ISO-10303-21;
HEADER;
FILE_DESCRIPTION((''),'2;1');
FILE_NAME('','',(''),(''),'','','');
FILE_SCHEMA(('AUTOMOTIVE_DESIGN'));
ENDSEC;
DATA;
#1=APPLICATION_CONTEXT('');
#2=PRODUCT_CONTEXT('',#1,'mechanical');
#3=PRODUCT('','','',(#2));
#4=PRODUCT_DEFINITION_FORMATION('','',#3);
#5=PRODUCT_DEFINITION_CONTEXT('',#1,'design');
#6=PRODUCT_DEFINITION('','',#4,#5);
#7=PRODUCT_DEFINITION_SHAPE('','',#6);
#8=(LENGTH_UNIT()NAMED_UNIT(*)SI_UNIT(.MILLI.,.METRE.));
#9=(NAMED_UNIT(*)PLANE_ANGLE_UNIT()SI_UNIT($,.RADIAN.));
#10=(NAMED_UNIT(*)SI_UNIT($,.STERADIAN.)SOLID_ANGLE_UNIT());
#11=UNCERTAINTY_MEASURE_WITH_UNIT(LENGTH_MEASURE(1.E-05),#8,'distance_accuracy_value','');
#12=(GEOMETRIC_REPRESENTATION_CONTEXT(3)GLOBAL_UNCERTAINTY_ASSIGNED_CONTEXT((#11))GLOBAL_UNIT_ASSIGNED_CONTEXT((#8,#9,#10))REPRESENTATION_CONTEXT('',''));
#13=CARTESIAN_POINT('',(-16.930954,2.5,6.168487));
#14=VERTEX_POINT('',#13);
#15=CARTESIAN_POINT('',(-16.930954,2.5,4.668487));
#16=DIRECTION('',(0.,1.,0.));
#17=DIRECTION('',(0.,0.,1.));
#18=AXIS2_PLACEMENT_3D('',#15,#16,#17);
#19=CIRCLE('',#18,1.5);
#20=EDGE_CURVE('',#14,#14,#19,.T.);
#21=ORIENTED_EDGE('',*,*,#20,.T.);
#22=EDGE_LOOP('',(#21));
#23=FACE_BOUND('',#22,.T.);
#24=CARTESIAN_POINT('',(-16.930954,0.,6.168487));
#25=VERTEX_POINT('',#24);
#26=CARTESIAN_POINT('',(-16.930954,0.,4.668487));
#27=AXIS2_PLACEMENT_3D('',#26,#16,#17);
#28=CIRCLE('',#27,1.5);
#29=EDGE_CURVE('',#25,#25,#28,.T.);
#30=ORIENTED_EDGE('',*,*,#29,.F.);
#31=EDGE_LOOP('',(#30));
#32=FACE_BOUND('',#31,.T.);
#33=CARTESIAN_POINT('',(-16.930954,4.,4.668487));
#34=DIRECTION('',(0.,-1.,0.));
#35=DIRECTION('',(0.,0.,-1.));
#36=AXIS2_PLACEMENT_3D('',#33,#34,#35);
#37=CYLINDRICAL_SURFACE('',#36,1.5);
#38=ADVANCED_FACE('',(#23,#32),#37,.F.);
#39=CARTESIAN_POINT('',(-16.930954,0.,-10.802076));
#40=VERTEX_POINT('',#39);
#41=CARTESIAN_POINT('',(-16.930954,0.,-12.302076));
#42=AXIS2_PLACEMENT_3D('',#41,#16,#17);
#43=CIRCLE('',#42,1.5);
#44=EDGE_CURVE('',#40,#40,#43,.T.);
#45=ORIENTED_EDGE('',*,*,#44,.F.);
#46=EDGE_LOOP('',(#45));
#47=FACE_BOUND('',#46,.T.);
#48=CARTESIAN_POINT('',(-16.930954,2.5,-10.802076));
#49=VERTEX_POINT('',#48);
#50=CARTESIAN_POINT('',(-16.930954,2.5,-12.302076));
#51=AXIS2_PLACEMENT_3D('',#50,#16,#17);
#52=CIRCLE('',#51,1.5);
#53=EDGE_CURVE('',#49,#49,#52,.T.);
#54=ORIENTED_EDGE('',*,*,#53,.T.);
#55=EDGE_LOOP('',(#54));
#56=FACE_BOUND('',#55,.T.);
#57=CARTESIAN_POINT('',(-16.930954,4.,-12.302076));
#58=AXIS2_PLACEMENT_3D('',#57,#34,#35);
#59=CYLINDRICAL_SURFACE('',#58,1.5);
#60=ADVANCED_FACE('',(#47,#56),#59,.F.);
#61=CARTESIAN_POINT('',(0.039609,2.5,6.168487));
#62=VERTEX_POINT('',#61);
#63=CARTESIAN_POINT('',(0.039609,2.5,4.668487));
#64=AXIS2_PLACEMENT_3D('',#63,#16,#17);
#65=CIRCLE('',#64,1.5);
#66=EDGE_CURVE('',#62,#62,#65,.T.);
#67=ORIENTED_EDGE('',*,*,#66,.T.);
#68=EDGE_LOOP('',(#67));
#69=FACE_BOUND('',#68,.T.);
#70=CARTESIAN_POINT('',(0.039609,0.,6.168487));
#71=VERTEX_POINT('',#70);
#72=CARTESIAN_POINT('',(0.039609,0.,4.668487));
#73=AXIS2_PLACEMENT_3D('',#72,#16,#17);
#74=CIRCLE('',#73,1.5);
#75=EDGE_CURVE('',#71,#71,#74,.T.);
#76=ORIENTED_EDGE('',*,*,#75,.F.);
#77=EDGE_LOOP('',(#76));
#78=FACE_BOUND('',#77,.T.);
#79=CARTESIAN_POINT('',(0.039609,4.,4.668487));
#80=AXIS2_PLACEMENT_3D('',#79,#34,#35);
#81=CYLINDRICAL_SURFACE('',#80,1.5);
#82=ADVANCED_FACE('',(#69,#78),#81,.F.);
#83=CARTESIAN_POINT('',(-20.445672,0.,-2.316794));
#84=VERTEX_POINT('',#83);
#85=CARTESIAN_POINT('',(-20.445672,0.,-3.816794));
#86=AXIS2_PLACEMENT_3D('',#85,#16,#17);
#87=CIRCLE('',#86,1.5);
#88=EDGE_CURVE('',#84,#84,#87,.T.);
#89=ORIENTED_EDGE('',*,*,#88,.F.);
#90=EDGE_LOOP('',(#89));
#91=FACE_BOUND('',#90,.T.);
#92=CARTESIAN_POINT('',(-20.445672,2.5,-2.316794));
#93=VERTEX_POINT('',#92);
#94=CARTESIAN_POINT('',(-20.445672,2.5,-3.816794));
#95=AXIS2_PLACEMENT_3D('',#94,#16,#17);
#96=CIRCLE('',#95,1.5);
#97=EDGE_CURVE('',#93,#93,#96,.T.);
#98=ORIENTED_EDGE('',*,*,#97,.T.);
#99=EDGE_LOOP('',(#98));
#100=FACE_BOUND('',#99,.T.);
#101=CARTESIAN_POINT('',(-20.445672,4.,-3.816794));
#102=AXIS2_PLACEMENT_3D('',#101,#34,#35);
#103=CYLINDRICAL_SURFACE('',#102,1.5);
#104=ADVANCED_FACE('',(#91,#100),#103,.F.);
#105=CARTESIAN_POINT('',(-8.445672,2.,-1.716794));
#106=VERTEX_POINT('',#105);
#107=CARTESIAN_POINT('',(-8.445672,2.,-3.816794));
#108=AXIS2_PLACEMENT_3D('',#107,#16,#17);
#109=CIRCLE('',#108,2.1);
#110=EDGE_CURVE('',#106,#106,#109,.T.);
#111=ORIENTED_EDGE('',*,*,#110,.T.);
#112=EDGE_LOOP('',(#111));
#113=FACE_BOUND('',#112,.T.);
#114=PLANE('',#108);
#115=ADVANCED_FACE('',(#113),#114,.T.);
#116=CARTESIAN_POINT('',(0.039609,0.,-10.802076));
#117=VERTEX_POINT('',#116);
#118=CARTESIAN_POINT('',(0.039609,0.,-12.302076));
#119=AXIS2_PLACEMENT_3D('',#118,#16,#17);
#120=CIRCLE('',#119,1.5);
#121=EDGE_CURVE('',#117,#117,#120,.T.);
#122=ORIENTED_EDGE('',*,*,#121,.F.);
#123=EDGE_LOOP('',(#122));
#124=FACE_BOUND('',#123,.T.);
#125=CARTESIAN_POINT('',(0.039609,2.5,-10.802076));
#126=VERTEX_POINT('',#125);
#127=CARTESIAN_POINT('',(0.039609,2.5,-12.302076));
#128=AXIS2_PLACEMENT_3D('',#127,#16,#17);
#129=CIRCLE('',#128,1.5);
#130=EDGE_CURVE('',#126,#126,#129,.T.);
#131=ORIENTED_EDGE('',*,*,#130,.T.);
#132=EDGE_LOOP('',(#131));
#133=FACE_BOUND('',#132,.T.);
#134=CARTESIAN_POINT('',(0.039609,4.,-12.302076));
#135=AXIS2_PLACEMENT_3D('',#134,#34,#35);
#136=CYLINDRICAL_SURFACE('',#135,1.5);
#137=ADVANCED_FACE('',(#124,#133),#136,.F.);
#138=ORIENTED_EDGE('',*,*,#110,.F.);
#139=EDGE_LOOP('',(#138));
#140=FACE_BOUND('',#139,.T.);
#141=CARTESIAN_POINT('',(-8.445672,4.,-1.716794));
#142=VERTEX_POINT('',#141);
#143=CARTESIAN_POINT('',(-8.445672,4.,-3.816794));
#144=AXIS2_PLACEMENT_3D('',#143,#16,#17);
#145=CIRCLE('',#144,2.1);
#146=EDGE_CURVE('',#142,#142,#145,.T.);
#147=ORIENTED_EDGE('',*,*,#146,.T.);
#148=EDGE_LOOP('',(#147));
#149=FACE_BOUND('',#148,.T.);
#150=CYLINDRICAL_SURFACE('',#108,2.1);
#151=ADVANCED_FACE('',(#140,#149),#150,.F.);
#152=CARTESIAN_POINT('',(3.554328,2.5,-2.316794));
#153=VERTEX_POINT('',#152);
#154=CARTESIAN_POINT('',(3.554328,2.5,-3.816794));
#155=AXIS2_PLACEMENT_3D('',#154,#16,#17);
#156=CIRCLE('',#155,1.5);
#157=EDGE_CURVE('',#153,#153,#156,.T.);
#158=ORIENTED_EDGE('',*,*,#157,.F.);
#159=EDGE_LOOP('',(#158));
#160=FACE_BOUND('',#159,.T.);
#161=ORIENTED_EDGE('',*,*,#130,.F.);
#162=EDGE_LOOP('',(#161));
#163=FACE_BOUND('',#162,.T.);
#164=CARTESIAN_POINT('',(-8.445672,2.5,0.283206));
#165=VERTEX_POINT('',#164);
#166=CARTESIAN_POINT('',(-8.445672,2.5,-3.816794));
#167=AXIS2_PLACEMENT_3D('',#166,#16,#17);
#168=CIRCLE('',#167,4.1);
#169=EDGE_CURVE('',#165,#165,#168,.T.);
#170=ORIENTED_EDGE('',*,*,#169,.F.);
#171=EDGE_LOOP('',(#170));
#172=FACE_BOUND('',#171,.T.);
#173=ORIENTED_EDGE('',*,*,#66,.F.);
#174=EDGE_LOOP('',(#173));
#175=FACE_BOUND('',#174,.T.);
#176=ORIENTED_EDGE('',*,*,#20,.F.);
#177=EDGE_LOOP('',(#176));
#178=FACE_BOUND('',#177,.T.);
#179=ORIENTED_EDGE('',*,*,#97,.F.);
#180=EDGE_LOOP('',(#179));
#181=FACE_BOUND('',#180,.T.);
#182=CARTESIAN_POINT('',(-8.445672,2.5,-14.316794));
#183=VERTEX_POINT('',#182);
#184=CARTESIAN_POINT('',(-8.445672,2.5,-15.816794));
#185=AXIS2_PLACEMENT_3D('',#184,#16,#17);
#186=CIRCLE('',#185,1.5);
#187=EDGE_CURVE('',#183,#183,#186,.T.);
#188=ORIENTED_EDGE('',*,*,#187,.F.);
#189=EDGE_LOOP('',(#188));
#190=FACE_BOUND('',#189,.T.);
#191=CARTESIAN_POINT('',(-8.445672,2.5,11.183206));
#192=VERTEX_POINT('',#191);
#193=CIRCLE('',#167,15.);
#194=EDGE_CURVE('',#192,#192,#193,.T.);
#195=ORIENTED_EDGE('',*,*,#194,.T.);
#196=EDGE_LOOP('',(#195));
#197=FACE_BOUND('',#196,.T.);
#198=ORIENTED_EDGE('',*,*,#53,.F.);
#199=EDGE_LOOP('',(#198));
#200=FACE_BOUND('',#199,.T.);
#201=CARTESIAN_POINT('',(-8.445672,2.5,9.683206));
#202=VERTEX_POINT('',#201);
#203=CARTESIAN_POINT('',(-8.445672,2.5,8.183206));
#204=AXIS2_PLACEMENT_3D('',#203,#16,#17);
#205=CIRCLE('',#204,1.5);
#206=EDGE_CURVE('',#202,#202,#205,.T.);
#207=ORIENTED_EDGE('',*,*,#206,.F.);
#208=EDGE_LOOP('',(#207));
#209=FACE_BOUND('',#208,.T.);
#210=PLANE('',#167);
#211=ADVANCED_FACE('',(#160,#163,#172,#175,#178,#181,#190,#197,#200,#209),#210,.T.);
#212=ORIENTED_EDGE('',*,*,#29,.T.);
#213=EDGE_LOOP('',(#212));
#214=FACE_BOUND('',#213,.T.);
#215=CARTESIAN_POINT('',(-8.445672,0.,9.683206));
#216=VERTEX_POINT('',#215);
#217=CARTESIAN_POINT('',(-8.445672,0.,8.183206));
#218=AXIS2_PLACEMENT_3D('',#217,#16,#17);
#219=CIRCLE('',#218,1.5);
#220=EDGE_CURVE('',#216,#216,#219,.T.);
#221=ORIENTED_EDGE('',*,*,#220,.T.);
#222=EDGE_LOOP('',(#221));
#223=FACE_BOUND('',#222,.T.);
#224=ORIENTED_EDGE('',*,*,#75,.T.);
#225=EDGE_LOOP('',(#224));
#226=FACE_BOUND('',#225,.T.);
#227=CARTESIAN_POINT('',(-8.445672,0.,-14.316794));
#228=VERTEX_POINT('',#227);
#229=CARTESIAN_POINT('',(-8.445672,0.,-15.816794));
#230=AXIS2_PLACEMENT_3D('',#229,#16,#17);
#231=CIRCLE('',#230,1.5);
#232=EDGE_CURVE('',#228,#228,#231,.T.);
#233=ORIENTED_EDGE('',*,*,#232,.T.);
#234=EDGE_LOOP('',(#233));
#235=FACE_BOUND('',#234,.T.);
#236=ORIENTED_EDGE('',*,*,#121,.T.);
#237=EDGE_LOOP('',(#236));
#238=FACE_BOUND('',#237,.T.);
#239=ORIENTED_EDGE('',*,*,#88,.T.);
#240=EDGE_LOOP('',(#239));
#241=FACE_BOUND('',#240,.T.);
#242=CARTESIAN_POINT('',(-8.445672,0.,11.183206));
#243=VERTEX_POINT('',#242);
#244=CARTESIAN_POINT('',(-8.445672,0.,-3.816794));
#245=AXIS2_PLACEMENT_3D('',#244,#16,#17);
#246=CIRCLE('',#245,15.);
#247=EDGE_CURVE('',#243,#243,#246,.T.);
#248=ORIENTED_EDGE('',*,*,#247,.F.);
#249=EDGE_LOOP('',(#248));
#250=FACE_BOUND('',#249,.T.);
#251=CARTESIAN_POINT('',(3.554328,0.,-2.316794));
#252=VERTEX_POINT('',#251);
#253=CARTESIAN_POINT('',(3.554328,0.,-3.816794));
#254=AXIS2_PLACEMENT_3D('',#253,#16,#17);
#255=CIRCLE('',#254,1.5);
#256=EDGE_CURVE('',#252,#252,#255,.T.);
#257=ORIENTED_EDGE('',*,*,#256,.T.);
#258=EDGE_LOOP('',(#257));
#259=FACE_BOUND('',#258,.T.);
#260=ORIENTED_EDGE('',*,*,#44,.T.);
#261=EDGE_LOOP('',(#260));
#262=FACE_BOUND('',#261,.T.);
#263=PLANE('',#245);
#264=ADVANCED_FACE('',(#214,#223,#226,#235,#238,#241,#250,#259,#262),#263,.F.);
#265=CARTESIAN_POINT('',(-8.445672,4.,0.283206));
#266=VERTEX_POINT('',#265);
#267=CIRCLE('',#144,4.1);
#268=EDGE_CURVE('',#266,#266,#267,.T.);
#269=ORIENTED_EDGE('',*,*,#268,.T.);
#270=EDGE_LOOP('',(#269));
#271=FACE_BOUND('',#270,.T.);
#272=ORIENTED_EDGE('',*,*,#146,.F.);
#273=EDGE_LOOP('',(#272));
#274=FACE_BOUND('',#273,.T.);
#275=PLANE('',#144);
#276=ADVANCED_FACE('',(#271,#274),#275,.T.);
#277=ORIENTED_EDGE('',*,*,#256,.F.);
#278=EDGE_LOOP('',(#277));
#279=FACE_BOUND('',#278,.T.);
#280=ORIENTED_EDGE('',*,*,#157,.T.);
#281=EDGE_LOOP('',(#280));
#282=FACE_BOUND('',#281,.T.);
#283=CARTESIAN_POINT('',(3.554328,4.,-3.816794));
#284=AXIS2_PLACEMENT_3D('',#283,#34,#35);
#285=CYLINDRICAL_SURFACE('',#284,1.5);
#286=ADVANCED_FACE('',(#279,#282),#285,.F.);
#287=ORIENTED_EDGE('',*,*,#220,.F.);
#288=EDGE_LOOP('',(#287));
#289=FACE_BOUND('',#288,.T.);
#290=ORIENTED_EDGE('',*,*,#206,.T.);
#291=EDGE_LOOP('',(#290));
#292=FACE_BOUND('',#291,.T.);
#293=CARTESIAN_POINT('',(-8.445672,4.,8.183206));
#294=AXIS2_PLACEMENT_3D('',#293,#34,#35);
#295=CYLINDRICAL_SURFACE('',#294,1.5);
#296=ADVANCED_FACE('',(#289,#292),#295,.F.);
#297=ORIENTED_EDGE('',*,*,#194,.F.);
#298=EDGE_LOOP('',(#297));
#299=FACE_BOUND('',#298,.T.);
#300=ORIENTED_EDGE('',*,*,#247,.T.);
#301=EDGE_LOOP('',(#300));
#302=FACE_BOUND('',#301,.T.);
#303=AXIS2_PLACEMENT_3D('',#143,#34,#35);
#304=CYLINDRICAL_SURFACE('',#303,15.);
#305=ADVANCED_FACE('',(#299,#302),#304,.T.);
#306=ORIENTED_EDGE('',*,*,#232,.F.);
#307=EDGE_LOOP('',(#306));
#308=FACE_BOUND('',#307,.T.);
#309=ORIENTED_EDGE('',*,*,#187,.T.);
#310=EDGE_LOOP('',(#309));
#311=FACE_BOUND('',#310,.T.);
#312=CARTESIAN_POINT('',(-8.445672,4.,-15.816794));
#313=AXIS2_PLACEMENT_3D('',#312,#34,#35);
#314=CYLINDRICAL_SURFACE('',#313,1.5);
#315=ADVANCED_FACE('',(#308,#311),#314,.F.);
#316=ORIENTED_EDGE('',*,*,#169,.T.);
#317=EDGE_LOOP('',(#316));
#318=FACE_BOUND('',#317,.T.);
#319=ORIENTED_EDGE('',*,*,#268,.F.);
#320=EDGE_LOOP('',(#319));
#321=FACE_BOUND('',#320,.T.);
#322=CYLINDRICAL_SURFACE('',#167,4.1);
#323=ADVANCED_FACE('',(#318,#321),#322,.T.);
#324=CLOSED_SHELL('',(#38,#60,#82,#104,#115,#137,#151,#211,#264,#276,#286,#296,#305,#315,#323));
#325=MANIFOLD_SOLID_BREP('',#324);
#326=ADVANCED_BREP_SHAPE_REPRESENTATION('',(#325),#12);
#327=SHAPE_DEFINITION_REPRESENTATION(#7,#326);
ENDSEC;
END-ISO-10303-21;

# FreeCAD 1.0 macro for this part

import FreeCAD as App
import Part
import Sketcher
Q = App.Units.Quantity

doc = App.newDocument("Part")
params = doc.addObject("Spreadsheet::Sheet", "Params")
for row, (alias, value) in enumerate([
    ("sketch1_diameter", "30 mm"),
    ("sketch1_diameter2", "3 mm"),
    ("pad1_length", "4 mm"),
    ("sketch2_diameter", "4.2 mm"),
    ("pocket1_length", "2 mm"),
    ("sketch3_diameter", "8.2 mm"),
    ("pocket2_length", "1.5 mm"),
], start=1):
    params.set(f"A{row}", alias)
    params.set(f"B{row}", "=" + value)
    params.setAlias(f"B{row}", alias)

body = doc.addObject("PartDesign::Body", "Body")

sketch1 = doc.addObject("Sketcher::SketchObject", "Sketch")
body.addObject(sketch1)
sketch1.AttachmentSupport = (doc.XZ_Plane, [""])
sketch1.MapMode = "FlatFace"
sketch1.addGeometry(Part.Circle(App.Vector(-8.4, -3.8, 0), App.Vector(0, 0, 1), 15), False)
sketch1.addGeometry(Part.Circle(App.Vector(-16.9, -12.3, 0), App.Vector(0, 0, 1), 1.5), False)
sketch1.addGeometry(Part.Circle(App.Vector(-8.4, -15.8, 0), App.Vector(0, 0, 1), 1.5), False)
sketch1.addGeometry(Part.Circle(App.Vector(-20.4, -3.8, 0), App.Vector(0, 0, 1), 1.5), False)
sketch1.addGeometry(Part.Circle(App.Vector(-16.9, 4.7, 0), App.Vector(0, 0, 1), 1.5), False)
sketch1.addGeometry(Part.Circle(App.Vector(0, -12.3, 0), App.Vector(0, 0, 1), 1.5), False)
sketch1.addGeometry(Part.Circle(App.Vector(3.6, -3.8, 0), App.Vector(0, 0, 1), 1.5), False)
sketch1.addGeometry(Part.Circle(App.Vector(-8.4, 8.2, 0), App.Vector(0, 0, 1), 1.5), False)
sketch1.addGeometry(Part.Circle(App.Vector(0, 4.7, 0), App.Vector(0, 0, 1), 1.5), False)
sketch1.addConstraint(Sketcher.Constraint("Equal", 1, 2))
sketch1.addConstraint(Sketcher.Constraint("Equal", 2, 3))
sketch1.addConstraint(Sketcher.Constraint("Equal", 3, 4))
sketch1.addConstraint(Sketcher.Constraint("Equal", 4, 5))
sketch1.addConstraint(Sketcher.Constraint("Equal", 5, 6))
sketch1.addConstraint(Sketcher.Constraint("Equal", 6, 7))
sketch1.addConstraint(Sketcher.Constraint("Equal", 7, 8))
sketch1.addConstraint(Sketcher.Constraint("Horizontal", 0, 3, 3, 3))
sketch1.addConstraint(Sketcher.Constraint("Horizontal", 1, 3, 5, 3))
sketch1.addConstraint(Sketcher.Constraint("Horizontal", 3, 3, 6, 3))
sketch1.addConstraint(Sketcher.Constraint("Horizontal", 4, 3, 8, 3))
sketch1.addConstraint(Sketcher.Constraint("Vertical", 0, 3, 2, 3))
sketch1.addConstraint(Sketcher.Constraint("Vertical", 1, 3, 4, 3))
sketch1.addConstraint(Sketcher.Constraint("Vertical", 2, 3, 7, 3))
sketch1.addConstraint(Sketcher.Constraint("Vertical", 5, 3, 8, 3))
sketch1.addConstraint(Sketcher.Constraint("Diameter", 0, Q("30 mm")))
sketch1.addConstraint(Sketcher.Constraint("Diameter", 1, Q("3 mm")))
sketch1.addConstraint(Sketcher.Constraint("DistanceY", 2, 3, 0, 3, Q("12 mm")))
sketch1.addConstraint(Sketcher.Constraint("DistanceX", 3, 3, 0, 3, Q("12 mm")))
sketch1.addConstraint(Sketcher.Constraint("DistanceX", 0, 3, 6, 3, Q("12 mm")))
sketch1.addConstraint(Sketcher.Constraint("DistanceY", 0, 3, 7, 3, Q("12 mm")))
sketch1.addConstraint(Sketcher.Constraint("DistanceX", -1, 1, 5, 3, Q("0.039609 mm")))
sketch1.addConstraint(Sketcher.Constraint("DistanceX", 1, 3, 0, 3, Q("8.485281 mm")))
sketch1.addConstraint(Sketcher.Constraint("DistanceY", 1, 3, 0, 3, Q("8.485281 mm")))
sketch1.addConstraint(Sketcher.Constraint("DistanceY", 3, 3, 4, 3, Q("8.485281 mm")))
sketch1.addConstraint(Sketcher.Constraint("DistanceX", 2, 3, 5, 3, Q("8.485281 mm")))
sketch1.addConstraint(Sketcher.Constraint("DistanceY", 0, 3, -1, 1, Q("3.816794 mm")))
sketch1.setExpression("Constraints[15]", "Params.sketch1_diameter")
sketch1.setExpression("Constraints[16]", "Params.sketch1_diameter2")
pad1 = doc.addObject("PartDesign::Pad", "Pad")
body.addObject(pad1)
pad1.Profile = sketch1
pad1.setExpression("Length", "Params.pad1_length")
pad1.Reversed = True

sketch2 = doc.addObject("Sketcher::SketchObject", "Sketch001")
body.addObject(sketch2)
sketch2.AttachmentSupport = (doc.XZ_Plane, [""])
sketch2.MapMode = "FlatFace"
sketch2.AttachmentOffset = App.Placement(App.Vector(0, 0, -4), App.Rotation())
sketch2.addGeometry(Part.Circle(App.Vector(-8.4, -3.8, 0), App.Vector(0, 0, 1), 2.1), False)
sketch2.addConstraint(Sketcher.Constraint("Diameter", 0, Q("4.2 mm")))
sketch2.addConstraint(Sketcher.Constraint("DistanceX", 0, 3, -1, 1, Q("8.445672 mm")))
sketch2.addConstraint(Sketcher.Constraint("DistanceY", 0, 3, -1, 1, Q("3.816794 mm")))
sketch2.setExpression("Constraints[0]", "Params.sketch2_diameter")
pocket1 = doc.addObject("PartDesign::Pocket", "Pocket")
body.addObject(pocket1)
pocket1.Profile = sketch2
pocket1.setExpression("Length", "Params.pocket1_length")
pocket1.Reversed = True

sketch3 = doc.addObject("Sketcher::SketchObject", "Sketch002")
body.addObject(sketch3)
sketch3.AttachmentSupport = (doc.XZ_Plane, [""])
sketch3.MapMode = "FlatFace"
sketch3.AttachmentOffset = App.Placement(App.Vector(0, 0, -4), App.Rotation())
sketch3.addGeometry(Part.Circle(App.Vector(-8.4, -3.8, 0), App.Vector(0, 0, 1), 21.6), False)
sketch3.addGeometry(Part.Circle(App.Vector(-8.4, -3.8, 0), App.Vector(0, 0, 1), 4.1), False)
sketch3.addConstraint(Sketcher.Constraint("Coincident", 1, 3, 0, 3))
sketch3.addConstraint(Sketcher.Constraint("Diameter", 1, Q("8.2 mm")))
sketch3.addConstraint(Sketcher.Constraint("Diameter", 0, Q("43.258061 mm")))
sketch3.addConstraint(Sketcher.Constraint("DistanceX", 0, 3, -1, 1, Q("8.445672 mm")))
sketch3.addConstraint(Sketcher.Constraint("DistanceY", 0, 3, -1, 1, Q("3.816794 mm")))
sketch3.setExpression("Constraints[1]", "Params.sketch3_diameter")
pocket2 = doc.addObject("PartDesign::Pocket", "Pocket001")
body.addObject(pocket2)
pocket2.Profile = sketch3
pocket2.setExpression("Length", "Params.pocket2_length")
pocket2.Reversed = True

doc.recompute()
